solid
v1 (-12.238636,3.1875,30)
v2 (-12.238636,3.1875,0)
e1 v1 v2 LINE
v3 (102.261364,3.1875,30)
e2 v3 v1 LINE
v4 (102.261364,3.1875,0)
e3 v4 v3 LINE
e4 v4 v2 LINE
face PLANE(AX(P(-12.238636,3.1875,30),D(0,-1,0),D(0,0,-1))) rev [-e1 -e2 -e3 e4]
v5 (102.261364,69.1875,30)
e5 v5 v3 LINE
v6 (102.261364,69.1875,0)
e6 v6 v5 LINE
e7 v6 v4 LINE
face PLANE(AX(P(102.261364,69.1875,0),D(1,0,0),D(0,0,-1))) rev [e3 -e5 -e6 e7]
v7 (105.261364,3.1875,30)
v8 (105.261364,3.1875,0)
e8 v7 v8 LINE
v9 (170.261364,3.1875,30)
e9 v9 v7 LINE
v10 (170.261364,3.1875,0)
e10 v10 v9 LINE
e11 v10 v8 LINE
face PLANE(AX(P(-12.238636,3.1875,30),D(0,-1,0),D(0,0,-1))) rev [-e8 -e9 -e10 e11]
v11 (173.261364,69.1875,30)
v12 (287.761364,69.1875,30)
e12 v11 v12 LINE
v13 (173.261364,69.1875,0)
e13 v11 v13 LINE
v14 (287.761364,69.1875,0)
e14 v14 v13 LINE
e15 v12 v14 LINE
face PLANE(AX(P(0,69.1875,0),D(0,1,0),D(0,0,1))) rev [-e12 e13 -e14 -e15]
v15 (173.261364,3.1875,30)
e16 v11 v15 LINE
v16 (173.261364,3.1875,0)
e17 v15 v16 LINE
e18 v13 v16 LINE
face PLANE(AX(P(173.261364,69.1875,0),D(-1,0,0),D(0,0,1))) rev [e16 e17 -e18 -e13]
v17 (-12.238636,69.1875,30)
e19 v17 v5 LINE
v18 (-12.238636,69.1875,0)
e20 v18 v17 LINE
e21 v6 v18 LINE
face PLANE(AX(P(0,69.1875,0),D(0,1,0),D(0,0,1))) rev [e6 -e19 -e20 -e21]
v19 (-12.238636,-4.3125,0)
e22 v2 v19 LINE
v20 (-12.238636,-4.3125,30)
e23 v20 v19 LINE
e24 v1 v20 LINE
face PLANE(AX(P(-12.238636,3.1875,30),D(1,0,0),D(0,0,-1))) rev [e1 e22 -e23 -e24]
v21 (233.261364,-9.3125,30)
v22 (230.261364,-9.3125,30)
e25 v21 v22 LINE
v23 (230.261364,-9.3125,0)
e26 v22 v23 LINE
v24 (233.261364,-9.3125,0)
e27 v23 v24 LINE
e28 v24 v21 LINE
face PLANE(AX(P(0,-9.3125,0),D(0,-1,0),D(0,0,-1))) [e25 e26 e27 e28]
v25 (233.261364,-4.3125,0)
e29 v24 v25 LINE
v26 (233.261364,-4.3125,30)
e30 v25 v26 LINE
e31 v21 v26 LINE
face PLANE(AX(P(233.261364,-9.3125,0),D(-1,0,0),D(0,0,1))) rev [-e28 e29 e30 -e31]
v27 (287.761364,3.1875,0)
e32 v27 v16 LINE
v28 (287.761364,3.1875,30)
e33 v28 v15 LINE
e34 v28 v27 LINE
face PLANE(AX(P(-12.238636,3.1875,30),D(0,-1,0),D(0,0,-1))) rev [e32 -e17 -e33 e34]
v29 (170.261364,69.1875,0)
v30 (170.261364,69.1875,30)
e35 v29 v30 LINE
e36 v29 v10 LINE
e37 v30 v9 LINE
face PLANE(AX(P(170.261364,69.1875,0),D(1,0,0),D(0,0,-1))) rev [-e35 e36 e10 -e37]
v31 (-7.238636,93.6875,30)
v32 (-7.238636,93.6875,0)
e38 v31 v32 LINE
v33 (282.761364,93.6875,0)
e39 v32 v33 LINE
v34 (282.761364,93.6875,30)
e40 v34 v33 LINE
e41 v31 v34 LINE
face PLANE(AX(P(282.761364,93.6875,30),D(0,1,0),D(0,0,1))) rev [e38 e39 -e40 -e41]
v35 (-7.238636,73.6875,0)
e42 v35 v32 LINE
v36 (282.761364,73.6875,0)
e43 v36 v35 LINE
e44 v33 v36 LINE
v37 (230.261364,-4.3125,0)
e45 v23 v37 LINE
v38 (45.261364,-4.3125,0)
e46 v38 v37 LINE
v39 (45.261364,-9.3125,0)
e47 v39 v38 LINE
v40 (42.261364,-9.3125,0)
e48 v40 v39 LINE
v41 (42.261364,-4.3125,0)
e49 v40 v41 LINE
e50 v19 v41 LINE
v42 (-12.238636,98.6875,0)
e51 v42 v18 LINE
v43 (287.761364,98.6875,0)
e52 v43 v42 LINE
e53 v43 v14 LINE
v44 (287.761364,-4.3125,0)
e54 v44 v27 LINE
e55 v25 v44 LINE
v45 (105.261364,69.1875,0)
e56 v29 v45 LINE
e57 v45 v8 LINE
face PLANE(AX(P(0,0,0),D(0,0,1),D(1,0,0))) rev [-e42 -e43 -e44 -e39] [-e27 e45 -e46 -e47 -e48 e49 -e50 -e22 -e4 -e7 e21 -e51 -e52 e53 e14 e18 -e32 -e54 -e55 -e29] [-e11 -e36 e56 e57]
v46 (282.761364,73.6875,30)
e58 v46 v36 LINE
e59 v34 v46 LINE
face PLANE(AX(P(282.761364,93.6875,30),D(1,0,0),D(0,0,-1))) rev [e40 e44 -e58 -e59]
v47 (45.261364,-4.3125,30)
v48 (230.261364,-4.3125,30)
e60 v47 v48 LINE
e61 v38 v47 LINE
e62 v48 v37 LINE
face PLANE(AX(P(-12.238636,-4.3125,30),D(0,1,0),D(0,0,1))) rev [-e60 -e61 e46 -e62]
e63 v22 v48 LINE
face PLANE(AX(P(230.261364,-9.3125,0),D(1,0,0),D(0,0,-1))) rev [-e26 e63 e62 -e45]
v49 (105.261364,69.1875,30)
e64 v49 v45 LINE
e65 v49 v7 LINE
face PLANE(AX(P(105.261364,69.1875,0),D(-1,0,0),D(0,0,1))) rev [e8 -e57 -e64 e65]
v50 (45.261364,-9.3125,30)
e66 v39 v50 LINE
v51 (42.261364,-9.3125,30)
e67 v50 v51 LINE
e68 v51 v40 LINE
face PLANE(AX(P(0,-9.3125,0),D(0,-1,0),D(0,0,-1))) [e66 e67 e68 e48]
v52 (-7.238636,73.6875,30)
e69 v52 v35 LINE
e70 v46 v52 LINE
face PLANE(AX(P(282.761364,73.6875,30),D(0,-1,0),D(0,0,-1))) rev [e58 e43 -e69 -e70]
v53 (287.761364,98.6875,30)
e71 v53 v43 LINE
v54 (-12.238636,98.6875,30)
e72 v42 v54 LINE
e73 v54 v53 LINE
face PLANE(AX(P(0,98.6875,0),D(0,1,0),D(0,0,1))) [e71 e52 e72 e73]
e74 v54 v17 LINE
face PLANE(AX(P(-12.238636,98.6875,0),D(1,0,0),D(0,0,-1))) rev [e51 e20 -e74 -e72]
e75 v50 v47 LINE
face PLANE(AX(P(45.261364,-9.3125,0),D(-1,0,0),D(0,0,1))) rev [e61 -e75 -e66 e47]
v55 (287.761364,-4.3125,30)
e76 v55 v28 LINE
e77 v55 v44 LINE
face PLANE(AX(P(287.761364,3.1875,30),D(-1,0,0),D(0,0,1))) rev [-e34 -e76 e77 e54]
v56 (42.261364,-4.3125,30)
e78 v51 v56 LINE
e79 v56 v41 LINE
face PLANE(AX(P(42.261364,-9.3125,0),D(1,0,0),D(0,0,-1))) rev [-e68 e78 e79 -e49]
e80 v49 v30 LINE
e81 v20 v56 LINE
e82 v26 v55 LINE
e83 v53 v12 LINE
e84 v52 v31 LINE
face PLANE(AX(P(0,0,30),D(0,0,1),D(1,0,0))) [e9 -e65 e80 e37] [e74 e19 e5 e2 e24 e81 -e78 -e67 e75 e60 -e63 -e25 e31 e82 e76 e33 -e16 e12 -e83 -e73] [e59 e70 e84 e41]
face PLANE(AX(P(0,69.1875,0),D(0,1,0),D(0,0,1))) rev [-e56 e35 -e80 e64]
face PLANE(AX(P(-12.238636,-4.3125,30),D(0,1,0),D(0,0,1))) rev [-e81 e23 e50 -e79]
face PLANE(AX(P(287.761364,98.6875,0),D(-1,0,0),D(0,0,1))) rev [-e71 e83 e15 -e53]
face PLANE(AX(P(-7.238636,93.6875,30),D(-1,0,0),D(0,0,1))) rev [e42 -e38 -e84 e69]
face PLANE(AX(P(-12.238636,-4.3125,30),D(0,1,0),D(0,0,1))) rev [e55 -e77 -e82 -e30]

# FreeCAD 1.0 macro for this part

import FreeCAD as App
import Part
import Sketcher

V = App.Vector
Q = App.Units.Quantity

doc = App.newDocument("Part")
body = doc.addObject("PartDesign::Body", "Body")

# Sketch on XY plane
sketch1 = body.newObject("Sketcher::SketchObject", "Sketch")
sketch1.AttachmentSupport = (doc.getObject("XY_Plane"), [""])
sketch1.MapMode = "FlatFace"
sketch1.addGeometry([
    Part.LineSegment(V(-12, 3, 0), V(-12, -4, 0)),
    Part.LineSegment(V(-12, -4, 0), V(288, -4, 0)),
    Part.LineSegment(V(288, -4, 0), V(288, 3, 0)),
    Part.LineSegment(V(288, 3, 0), V(-12, 3, 0)),
], False)
sketch1.addConstraint([
    Sketcher.Constraint("Coincident", 0, 2, 1, 1),
    Sketcher.Constraint("Coincident", 1, 2, 2, 1),
    Sketcher.Constraint("Coincident", 2, 2, 3, 1),
    Sketcher.Constraint("Coincident", 3, 2, 0, 1),
    Sketcher.Constraint("Vertical", 0),
    Sketcher.Constraint("Horizontal", 1),
    Sketcher.Constraint("Vertical", 2),
    Sketcher.Constraint("Horizontal", 3),
    Sketcher.Constraint("DistanceX", 1, 1, 1, 2, Q("300 mm")),
    Sketcher.Constraint("DistanceY", 0, 2, 0, 1, Q("7.5 mm")),
    Sketcher.Constraint("DistanceY", 0, 2, -1, 1, Q("4.3125 mm")),
    Sketcher.Constraint("DistanceX", 0, 2, -1, 1, Q("12.238636 mm")),
])
pad1 = body.newObject("PartDesign::Pad", "Pad")
pad1.Profile = sketch1
pad1.Length = 30

# Sketch on XZ plane
sketch2 = body.newObject("Sketcher::SketchObject", "Sketch001")
sketch2.AttachmentSupport = (doc.getObject("XZ_Plane"), [""])
sketch2.MapMode = "FlatFace"
sketch2.AttachmentOffset = App.Placement(V(0, 0, 4.3125), App.Rotation())
sketch2.addGeometry([
    Part.LineSegment(V(230.3, 30, 0), V(230.3, 0, 0)),  # 0
    Part.LineSegment(V(230.3, 0, 0), V(233.3, 0, 0)),  # 1
    Part.LineSegment(V(233.3, 0, 0), V(233.3, 30, 0)),  # 2
    Part.LineSegment(V(233.3, 30, 0), V(230.3, 30, 0)),  # 3
    Part.LineSegment(V(42.3, 30, 0), V(42.3, 0, 0)),  # 4
    Part.LineSegment(V(42.3, 0, 0), V(45.3, 0, 0)),  # 5
    Part.LineSegment(V(45.3, 0, 0), V(45.3, 30, 0)),  # 6
    Part.LineSegment(V(45.3, 30, 0), V(42.3, 30, 0)),  # 7
], False)
sketch2.addConstraint([
    Sketcher.Constraint("Coincident", 0, 2, 1, 1),
    Sketcher.Constraint("Coincident", 1, 2, 2, 1),
    Sketcher.Constraint("Coincident", 2, 2, 3, 1),
    Sketcher.Constraint("Coincident", 3, 2, 0, 1),
    Sketcher.Constraint("Coincident", 4, 2, 5, 1),
    Sketcher.Constraint("Coincident", 5, 2, 6, 1),
    Sketcher.Constraint("Coincident", 6, 2, 7, 1),
    Sketcher.Constraint("Coincident", 7, 2, 4, 1),
    Sketcher.Constraint("Vertical", 0),
    Sketcher.Constraint("Horizontal", 1),
    Sketcher.Constraint("Vertical", 2),
    Sketcher.Constraint("Horizontal", 3),
    Sketcher.Constraint("Vertical", 4),
    Sketcher.Constraint("Horizontal", 5),
    Sketcher.Constraint("Vertical", 6),
    Sketcher.Constraint("Horizontal", 7),
    Sketcher.Constraint("PointOnObject", 0, 2, -1),
    Sketcher.Constraint("PointOnObject", 4, 2, -1),
    Sketcher.Constraint("Horizontal", 3, 2, 6, 2),
    Sketcher.Constraint("Equal", 3, 5),
    Sketcher.Constraint("DistanceX", 1, 1, 1, 2, Q("3 mm")),
    Sketcher.Constraint("DistanceY", 0, 2, 0, 1, Q("30 mm")),
    Sketcher.Constraint("DistanceX", 4, 2, 0, 2, Q("188 mm")),
    Sketcher.Constraint("DistanceX", -1, 1, 0, 2, Q("230.261364 mm")),
])
pad2 = body.newObject("PartDesign::Pad", "Pad001")
pad2.Profile = sketch2
pad2.Length = 5

# Sketch on XZ plane
sketch3 = body.newObject("Sketcher::SketchObject", "Sketch002")
sketch3.AttachmentSupport = (doc.getObject("XZ_Plane"), [""])
sketch3.MapMode = "FlatFace"
sketch3.AttachmentOffset = App.Placement(V(0, 0, -3.1875), App.Rotation())
sketch3.addGeometry([
    Part.LineSegment(V(170.3, 0, 0), V(170.3, 30, 0)),  # 0
    Part.LineSegment(V(170.3, 30, 0), V(173.3, 30, 0)),  # 1
    Part.LineSegment(V(173.3, 30, 0), V(173.3, 0, 0)),  # 2
    Part.LineSegment(V(173.3, 0, 0), V(170.3, 0, 0)),  # 3
    Part.LineSegment(V(102.3, 0, 0), V(102.3, 30, 0)),  # 4
    Part.LineSegment(V(102.3, 30, 0), V(105.3, 30, 0)),  # 5
    Part.LineSegment(V(105.3, 30, 0), V(105.3, 0, 0)),  # 6
    Part.LineSegment(V(105.3, 0, 0), V(102.3, 0, 0)),  # 7
], False)
sketch3.addConstraint([
    Sketcher.Constraint("Coincident", 0, 2, 1, 1),
    Sketcher.Constraint("Coincident", 1, 2, 2, 1),
    Sketcher.Constraint("Coincident", 2, 2, 3, 1),
    Sketcher.Constraint("Coincident", 3, 2, 0, 1),
    Sketcher.Constraint("Coincident", 4, 2, 5, 1),
    Sketcher.Constraint("Coincident", 5, 2, 6, 1),
    Sketcher.Constraint("Coincident", 6, 2, 7, 1),
    Sketcher.Constraint("Coincident", 7, 2, 4, 1),
    Sketcher.Constraint("Vertical", 0),
    Sketcher.Constraint("Horizontal", 1),
    Sketcher.Constraint("Vertical", 2),
    Sketcher.Constraint("Horizontal", 3),
    Sketcher.Constraint("Vertical", 4),
    Sketcher.Constraint("Horizontal", 5),
    Sketcher.Constraint("Vertical", 6),
    Sketcher.Constraint("Horizontal", 7),
    Sketcher.Constraint("PointOnObject", 2, 2, -1),
    Sketcher.Constraint("PointOnObject", 6, 2, -1),
    Sketcher.Constraint("Horizontal", 1, 2, 4, 2),
    Sketcher.Constraint("Equal", 3, 5),
    Sketcher.Constraint("DistanceX", 1, 1, 1, 2, Q("3 mm")),
    Sketcher.Constraint("DistanceY", 0, 1, 0, 2, Q("30 mm")),
    Sketcher.Constraint("DistanceX", 4, 2, 0, 2, Q("68 mm")),
    Sketcher.Constraint("DistanceX", -1, 1, 0, 2, Q("170.261364 mm")),
])
pad3 = body.newObject("PartDesign::Pad", "Pad002")
pad3.Profile = sketch3
pad3.Length = 66
pad3.Reversed = True

# Sketch on XZ plane
sketch4 = body.newObject("Sketcher::SketchObject", "Sketch003")
sketch4.AttachmentSupport = (doc.getObject("XZ_Plane"), [""])
sketch4.MapMode = "FlatFace"
sketch4.AttachmentOffset = App.Placement(V(0, 0, -69.1875), App.Rotation())
sketch4.addGeometry([
    Part.LineSegment(V(-12, 0, 0), V(-12, 30, 0)),
    Part.LineSegment(V(-12, 30, 0), V(288, 30, 0)),
    Part.LineSegment(V(288, 30, 0), V(288, 0, 0)),
    Part.LineSegment(V(288, 0, 0), V(-12, 0, 0)),
], False)
sketch4.addConstraint([
    Sketcher.Constraint("Coincident", 0, 2, 1, 1),
    Sketcher.Constraint("Coincident", 1, 2, 2, 1),
    Sketcher.Constraint("Coincident", 2, 2, 3, 1),
    Sketcher.Constraint("Coincident", 3, 2, 0, 1),
    Sketcher.Constraint("Vertical", 0),
    Sketcher.Constraint("Horizontal", 1),
    Sketcher.Constraint("Vertical", 2),
    Sketcher.Constraint("Horizontal", 3),
    Sketcher.Constraint("PointOnObject", 2, 2, -1),
    Sketcher.Constraint("DistanceX", 1, 1, 1, 2, Q("300 mm")),
    Sketcher.Constraint("DistanceY", 0, 1, 0, 2, Q("30 mm")),
    Sketcher.Constraint("DistanceX", 0, 2, -1, 1, Q("12.238636 mm")),
])
pad4 = body.newObject("PartDesign::Pad", "Pad003")
pad4.Profile = sketch4
pad4.Length = 29.5
pad4.Reversed = True

# Sketch on XY plane
sketch5 = body.newObject("Sketcher::SketchObject", "Sketch004")
sketch5.AttachmentSupport = (doc.getObject("XY_Plane"), [""])
sketch5.MapMode = "FlatFace"
sketch5.addGeometry([
    Part.LineSegment(V(283, 94, 0), V(283, 74, 0)),
    Part.LineSegment(V(283, 74, 0), V(-7, 74, 0)),
    Part.LineSegment(V(-7, 74, 0), V(-7, 94, 0)),
    Part.LineSegment(V(-7, 94, 0), V(283, 94, 0)),
], False)
sketch5.addConstraint([
    Sketcher.Constraint("Coincident", 0, 2, 1, 1),
    Sketcher.Constraint("Coincident", 1, 2, 2, 1),
    Sketcher.Constraint("Coincident", 2, 2, 3, 1),
    Sketcher.Constraint("Coincident", 3, 2, 0, 1),
    Sketcher.Constraint("Vertical", 0),
    Sketcher.Constraint("Horizontal", 1),
    Sketcher.Constraint("Vertical", 2),
    Sketcher.Constraint("Horizontal", 3),
    Sketcher.Constraint("DistanceX", 1, 2, 1, 1, Q("290 mm")),
    Sketcher.Constraint("DistanceY", 0, 2, 0, 1, Q("20 mm")),
    Sketcher.Constraint("DistanceY", -1, 1, 0, 2, Q("73.6875 mm")),
    Sketcher.Constraint("DistanceX", -1, 1, 0, 2, Q("282.761364 mm")),
])
pocket1 = body.newObject("PartDesign::Pocket", "Pocket")
pocket1.Profile = sketch5
pocket1.Type = "ThroughAll"
pocket1.Reversed = True

doc.recompute()
